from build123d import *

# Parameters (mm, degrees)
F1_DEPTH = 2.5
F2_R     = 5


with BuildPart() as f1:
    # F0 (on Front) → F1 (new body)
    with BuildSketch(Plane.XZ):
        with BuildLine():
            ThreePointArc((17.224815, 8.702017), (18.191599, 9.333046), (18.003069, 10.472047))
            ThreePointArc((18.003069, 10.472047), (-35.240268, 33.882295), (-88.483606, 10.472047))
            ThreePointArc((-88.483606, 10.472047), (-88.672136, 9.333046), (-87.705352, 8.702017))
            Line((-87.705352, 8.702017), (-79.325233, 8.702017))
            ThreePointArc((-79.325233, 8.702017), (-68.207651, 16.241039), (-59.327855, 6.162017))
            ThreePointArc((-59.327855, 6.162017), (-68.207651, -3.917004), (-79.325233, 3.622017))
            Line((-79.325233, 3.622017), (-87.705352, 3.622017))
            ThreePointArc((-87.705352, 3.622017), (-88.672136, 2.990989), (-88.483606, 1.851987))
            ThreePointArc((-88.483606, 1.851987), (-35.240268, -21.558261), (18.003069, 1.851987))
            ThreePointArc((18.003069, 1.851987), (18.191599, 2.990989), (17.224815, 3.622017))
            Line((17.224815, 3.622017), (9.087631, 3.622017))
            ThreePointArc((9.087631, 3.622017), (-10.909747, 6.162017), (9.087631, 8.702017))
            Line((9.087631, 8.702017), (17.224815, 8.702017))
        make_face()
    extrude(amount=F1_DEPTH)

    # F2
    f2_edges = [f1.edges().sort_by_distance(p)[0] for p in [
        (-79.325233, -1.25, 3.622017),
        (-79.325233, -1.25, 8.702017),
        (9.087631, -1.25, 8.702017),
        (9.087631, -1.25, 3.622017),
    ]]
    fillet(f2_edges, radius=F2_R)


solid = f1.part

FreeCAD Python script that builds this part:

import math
import FreeCAD as App
import Part
import Sketcher


def edges_at(feature, points):
    """Names of the edges that pass closest to the given points."""
    edges = feature.Shape.Edges
    near = lambda p: min(range(len(edges)), key=lambda i: edges[i].distToShape(Part.Vertex(*p))[0])
    return sorted({f"Edge{near(p) + 1}" for p in points})

doc = App.newDocument("Part")
body = doc.addObject("PartDesign::Body", "Body")

# Sketch on XZ plane
sketch1 = body.newObject("Sketcher::SketchObject", "Sketch")
sketch1.AttachmentSupport = (doc.getObject("XZ_Plane"), [""])
sketch1.MapMode = "FlatFace"
sketch1.addGeometry(Part.ArcOfCircle(Part.Circle(App.Vector(17.2, 9.8, 0), App.Vector(0, 0, 1), 1.1), math.radians(-90), math.radians(43)), False)
sketch1.addGeometry(Part.ArcOfCircle(Part.Circle(App.Vector(-35.2, -38.4, 0), App.Vector(0, 0, 1), 72.3), math.radians(43), math.radians(137)), False)
sketch1.addGeometry(Part.ArcOfCircle(Part.Circle(App.Vector(-87.7, 9.8, 0), App.Vector(0, 0, 1), 1.1), math.radians(137), math.radians(270)), False)
sketch1.addGeometry(Part.LineSegment(App.Vector(-87.7, 8.7, 0), App.Vector(-79.3, 8.7, 0)), False)
sketch1.addGeometry(Part.ArcOfCircle(Part.Circle(App.Vector(-69.5, 6.2, 0), App.Vector(0, 0, 1), 10.2), math.radians(0), math.radians(166)), False)
sketch1.addGeometry(Part.ArcOfCircle(Part.Circle(App.Vector(-69.5, 6.2, 0), App.Vector(0, 0, 1), 10.2), math.radians(-166), math.radians(0)), False)
sketch1.addGeometry(Part.LineSegment(App.Vector(-79.3, 3.6, 0), App.Vector(-87.7, 3.6, 0)), False)
sketch1.addGeometry(Part.ArcOfCircle(Part.Circle(App.Vector(-87.7, 2.6, 0), App.Vector(0, 0, 1), 1.1), math.radians(90), math.radians(223)), False)
sketch1.addGeometry(Part.ArcOfCircle(Part.Circle(App.Vector(-35.2, 50.7, 0), App.Vector(0, 0, 1), 72.3), math.radians(-137), math.radians(-43)), False)
sketch1.addGeometry(Part.ArcOfCircle(Part.Circle(App.Vector(17.2, 2.6, 0), App.Vector(0, 0, 1), 1.1), math.radians(-43), math.radians(90)), False)
sketch1.addGeometry(Part.LineSegment(App.Vector(17.2, 3.6, 0), App.Vector(9.1, 3.6, 0)), False)
sketch1.addGeometry(Part.ArcOfCircle(Part.Circle(App.Vector(-0.7, 6.2, 0), App.Vector(0, 0, 1), 10.2), math.radians(14), math.radians(346)), False)
sketch1.addGeometry(Part.LineSegment(App.Vector(9.1, 8.7, 0), App.Vector(17.2, 8.7, 0)), False)
sketch1.addConstraint(Sketcher.Constraint("Tangent", 0, 2, 1, 1))
sketch1.addConstraint(Sketcher.Constraint("Tangent", 1, 2, 2, 1))
sketch1.addConstraint(Sketcher.Constraint("Tangent", 2, 2, 3, 1))
sketch1.addConstraint(Sketcher.Constraint("Coincident", 3, 2, 4, 2))
sketch1.addConstraint(Sketcher.Constraint("Tangent", 4, 1, 5, 2))
sketch1.addConstraint(Sketcher.Constraint("Coincident", 5, 1, 6, 1))
sketch1.addConstraint(Sketcher.Constraint("Tangent", 6, 2, 7, 1))
sketch1.addConstraint(Sketcher.Constraint("Tangent", 7, 2, 8, 1))
sketch1.addConstraint(Sketcher.Constraint("Tangent", 8, 2, 9, 1))
sketch1.addConstraint(Sketcher.Constraint("Tangent", 9, 2, 10, 1))
sketch1.addConstraint(Sketcher.Constraint("Coincident", 10, 2, 11, 2))
sketch1.addConstraint(Sketcher.Constraint("Coincident", 11, 1, 12, 1))
sketch1.addConstraint(Sketcher.Constraint("Tangent", 12, 2, 0, 1))
sketch1.addConstraint(Sketcher.Constraint("Horizontal", 3))
sketch1.addConstraint(Sketcher.Constraint("Horizontal", 6))
sketch1.addConstraint(Sketcher.Constraint("Horizontal", 10))
sketch1.addConstraint(Sketcher.Constraint("Horizontal", 12))
sketch1.addConstraint(Sketcher.Constraint("Equal", 0, 2))
sketch1.addConstraint(Sketcher.Constraint("Equal", 4, 5))
sketch1.addConstraint(Sketcher.Constraint("Equal", 2, 7))
sketch1.addConstraint(Sketcher.Constraint("Equal", 1, 8))
sketch1.addConstraint(Sketcher.Constraint("Equal", 7, 9))
sketch1.addConstraint(Sketcher.Constraint("Equal", 5, 11))
sketch1.addConstraint(Sketcher.Constraint("Horizontal", 0, 3, 2, 3))
sketch1.addConstraint(Sketcher.Constraint("Horizontal", 7, 3, 9, 3))
sketch1.addConstraint(Sketcher.Constraint("Horizontal", 5, 3, 11, 3))
sketch1.addConstraint(Sketcher.Constraint("Horizontal", 11, 3, 4, 1))
sketch1.addConstraint(Sketcher.Constraint("Vertical", 2, 3, 7, 3))
sketch1.addConstraint(Sketcher.Constraint("Vertical", 1, 3, 8, 3))
sketch1.addConstraint(Sketcher.Constraint("Vertical", 3, 2, 5, 1))
sketch1.addConstraint(Sketcher.Constraint("Radius", 4, 10.16))
sketch1.addConstraint(Sketcher.Constraint("Radius", 0, 1.056108))
sketch1.addConstraint(Sketcher.Constraint("Radius", 1, 72.252389))
sketch1.addConstraint(Sketcher.Constraint("DistanceY", 5, 3, 2, 2, 2.539999))
sketch1.addConstraint(Sketcher.Constraint("DistanceX", 3, 1, 3, 2, 8.380119))
sketch1.addConstraint(Sketcher.Constraint("DistanceX", 10, 2, 10, 1, 8.137184))
sketch1.addConstraint(Sketcher.Constraint("DistanceX", 1, 3, -1, 1, 35.240268))
sketch1.addConstraint(Sketcher.Constraint("DistanceX", 2, 3, -1, 1, 87.705352))
sketch1.addConstraint(Sketcher.Constraint("DistanceY", -1, 1, 7, 3, 2.565909))
pad1 = body.newObject("PartDesign::Pad", "Pad")
pad1.Profile = sketch1
pad1.Length = 2.5
doc.recompute()

fillet = body.newObject("PartDesign::Fillet", "Fillet")
fillet.Base = (pad1, edges_at(pad1, [
    (-79.325, -1.25, 3.622),
    (-79.325, -1.25, 8.702),
    (9.088, -1.25, 8.702),
    (9.088, -1.25, 3.622),
]))
fillet.Radius = 5

doc.recompute()
